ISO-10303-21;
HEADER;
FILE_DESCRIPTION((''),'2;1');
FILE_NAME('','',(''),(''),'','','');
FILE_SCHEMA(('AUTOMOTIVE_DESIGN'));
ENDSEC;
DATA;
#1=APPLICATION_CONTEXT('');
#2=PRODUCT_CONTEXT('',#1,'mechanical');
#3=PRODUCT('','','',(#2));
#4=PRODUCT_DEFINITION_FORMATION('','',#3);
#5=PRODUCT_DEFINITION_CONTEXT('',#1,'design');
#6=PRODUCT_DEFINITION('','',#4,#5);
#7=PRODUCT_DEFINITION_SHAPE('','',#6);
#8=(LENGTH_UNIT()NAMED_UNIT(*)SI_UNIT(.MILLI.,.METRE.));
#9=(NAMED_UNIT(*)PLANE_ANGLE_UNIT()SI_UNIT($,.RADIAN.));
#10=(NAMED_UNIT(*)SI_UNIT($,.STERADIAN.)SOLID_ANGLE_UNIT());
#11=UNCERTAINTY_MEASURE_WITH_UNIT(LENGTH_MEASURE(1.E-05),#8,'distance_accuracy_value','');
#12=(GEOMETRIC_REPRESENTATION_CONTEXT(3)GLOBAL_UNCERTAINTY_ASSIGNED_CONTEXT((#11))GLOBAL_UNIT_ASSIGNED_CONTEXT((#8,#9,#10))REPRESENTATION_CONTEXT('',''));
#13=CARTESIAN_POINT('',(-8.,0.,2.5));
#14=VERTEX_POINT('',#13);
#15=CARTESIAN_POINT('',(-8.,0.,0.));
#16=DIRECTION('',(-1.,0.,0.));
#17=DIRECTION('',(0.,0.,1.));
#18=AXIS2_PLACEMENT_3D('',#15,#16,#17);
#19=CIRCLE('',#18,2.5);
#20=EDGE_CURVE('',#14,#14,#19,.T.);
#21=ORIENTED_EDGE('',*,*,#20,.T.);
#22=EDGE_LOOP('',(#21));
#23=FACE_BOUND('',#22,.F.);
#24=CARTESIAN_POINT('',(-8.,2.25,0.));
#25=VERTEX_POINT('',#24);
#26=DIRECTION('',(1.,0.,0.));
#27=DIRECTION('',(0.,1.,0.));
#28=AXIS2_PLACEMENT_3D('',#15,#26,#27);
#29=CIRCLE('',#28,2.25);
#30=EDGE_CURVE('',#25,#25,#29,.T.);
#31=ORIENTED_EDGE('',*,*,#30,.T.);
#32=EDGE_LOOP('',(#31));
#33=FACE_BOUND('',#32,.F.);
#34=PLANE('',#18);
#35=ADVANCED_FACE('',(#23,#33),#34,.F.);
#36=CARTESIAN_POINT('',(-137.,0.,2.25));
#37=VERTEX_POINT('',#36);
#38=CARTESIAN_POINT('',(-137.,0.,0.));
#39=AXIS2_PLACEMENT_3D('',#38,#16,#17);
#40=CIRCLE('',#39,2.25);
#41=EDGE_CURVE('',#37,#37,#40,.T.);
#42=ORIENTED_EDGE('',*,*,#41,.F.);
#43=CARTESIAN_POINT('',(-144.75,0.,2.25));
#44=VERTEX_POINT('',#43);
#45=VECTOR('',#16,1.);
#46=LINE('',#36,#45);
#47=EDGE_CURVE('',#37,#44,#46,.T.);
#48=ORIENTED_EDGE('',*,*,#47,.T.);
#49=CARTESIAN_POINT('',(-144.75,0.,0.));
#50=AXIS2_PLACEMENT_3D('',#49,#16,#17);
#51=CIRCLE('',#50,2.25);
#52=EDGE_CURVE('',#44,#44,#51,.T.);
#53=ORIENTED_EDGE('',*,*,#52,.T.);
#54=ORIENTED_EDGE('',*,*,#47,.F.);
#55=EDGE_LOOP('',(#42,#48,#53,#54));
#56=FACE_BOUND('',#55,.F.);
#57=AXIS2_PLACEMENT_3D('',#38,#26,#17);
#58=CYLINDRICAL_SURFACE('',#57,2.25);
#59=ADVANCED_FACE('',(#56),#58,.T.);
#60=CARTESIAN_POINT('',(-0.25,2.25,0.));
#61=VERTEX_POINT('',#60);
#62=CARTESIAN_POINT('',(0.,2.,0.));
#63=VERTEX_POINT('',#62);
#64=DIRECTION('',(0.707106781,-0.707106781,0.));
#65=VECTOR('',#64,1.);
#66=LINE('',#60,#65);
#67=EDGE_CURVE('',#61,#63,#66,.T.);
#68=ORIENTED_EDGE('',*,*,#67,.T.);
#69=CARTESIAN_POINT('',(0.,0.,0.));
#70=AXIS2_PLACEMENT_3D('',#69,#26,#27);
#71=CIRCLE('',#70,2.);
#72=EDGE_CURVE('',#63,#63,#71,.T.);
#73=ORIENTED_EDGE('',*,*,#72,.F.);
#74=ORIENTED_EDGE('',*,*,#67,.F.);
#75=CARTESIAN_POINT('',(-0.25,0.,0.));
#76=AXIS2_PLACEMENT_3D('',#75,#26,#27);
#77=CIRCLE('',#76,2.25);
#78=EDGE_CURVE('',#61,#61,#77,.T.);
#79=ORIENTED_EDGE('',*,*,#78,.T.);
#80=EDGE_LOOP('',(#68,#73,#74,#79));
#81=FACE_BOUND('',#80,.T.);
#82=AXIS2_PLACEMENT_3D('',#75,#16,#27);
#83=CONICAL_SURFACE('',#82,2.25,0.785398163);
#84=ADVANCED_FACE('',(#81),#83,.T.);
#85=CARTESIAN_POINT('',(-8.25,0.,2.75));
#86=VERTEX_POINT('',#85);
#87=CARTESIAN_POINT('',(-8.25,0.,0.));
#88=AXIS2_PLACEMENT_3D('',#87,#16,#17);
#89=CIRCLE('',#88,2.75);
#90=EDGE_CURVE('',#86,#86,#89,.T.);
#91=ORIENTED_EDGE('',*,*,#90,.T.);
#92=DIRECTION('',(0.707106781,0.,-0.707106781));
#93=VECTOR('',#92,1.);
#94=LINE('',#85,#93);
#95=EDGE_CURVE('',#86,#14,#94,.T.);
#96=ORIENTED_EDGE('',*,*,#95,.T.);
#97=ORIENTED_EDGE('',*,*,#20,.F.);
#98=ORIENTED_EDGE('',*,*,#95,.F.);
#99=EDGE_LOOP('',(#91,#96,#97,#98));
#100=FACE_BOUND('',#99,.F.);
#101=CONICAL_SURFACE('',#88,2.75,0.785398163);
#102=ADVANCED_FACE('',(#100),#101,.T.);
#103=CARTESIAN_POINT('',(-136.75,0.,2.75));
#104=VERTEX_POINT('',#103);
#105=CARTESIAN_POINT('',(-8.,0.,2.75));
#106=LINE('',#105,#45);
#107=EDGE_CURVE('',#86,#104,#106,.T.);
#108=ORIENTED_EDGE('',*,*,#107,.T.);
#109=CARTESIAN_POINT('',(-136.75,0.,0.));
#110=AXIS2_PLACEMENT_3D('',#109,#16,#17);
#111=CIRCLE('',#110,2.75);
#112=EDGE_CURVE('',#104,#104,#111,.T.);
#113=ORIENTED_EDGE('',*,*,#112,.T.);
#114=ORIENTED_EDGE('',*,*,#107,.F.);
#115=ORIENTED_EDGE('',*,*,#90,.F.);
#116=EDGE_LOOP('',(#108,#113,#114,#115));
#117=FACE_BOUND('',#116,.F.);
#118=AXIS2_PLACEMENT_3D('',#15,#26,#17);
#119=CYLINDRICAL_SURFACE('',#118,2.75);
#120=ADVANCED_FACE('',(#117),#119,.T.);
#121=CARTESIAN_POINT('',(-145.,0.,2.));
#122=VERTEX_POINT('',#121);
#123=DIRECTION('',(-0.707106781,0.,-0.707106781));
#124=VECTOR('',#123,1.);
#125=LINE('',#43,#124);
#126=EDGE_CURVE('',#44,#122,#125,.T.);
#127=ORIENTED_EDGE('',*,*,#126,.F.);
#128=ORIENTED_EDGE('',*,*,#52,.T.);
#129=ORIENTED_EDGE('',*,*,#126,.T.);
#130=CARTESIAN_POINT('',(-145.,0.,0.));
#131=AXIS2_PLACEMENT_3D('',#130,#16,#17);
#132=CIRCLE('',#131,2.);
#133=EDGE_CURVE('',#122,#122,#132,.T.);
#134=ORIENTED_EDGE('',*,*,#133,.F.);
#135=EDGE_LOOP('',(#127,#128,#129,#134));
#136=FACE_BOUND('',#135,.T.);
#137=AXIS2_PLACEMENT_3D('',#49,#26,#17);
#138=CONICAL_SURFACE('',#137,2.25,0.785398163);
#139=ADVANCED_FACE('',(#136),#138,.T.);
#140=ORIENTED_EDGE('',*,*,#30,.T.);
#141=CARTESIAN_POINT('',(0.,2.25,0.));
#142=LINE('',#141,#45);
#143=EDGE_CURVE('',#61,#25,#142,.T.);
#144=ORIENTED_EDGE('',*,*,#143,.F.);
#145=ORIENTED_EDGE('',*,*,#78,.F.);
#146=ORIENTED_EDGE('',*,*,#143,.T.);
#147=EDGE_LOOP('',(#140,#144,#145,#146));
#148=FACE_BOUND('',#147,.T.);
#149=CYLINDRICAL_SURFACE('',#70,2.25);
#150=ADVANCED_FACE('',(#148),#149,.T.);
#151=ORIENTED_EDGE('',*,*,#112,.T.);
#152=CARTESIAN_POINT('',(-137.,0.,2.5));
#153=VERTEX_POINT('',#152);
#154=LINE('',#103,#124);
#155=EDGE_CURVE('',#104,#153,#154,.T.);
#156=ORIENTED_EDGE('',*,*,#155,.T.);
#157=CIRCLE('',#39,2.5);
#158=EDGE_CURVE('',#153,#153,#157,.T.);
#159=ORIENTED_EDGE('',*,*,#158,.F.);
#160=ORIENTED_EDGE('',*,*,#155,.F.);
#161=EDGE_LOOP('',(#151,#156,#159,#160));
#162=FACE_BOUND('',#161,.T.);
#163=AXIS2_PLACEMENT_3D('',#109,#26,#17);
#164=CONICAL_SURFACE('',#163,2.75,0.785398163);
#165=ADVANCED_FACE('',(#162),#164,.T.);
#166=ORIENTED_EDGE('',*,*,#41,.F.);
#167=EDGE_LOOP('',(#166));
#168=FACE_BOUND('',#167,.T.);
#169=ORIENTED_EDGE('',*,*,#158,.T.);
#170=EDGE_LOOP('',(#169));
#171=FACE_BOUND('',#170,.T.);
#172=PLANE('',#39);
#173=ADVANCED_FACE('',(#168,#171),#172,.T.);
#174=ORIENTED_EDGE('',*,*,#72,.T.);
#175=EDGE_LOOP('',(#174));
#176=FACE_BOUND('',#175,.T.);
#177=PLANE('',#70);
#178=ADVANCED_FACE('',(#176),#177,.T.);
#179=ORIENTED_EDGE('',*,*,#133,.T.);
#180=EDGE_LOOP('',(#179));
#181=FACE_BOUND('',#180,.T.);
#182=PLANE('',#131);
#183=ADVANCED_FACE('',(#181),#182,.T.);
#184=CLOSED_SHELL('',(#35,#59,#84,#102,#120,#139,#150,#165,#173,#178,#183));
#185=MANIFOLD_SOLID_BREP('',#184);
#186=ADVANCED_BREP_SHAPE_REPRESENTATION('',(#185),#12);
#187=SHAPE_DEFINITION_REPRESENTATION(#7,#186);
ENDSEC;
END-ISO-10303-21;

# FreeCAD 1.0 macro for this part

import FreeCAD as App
import Part
import Sketcher
Q = App.Units.Quantity


def edges_at(feature, points):
    """Names of the edges that pass closest to the given points."""
    edges = feature.Shape.Edges
    near = lambda p: min(range(len(edges)), key=lambda i: edges[i].distToShape(Part.Vertex(*p))[0])
    return sorted({f"Edge{near(p) + 1}" for p in points})

doc = App.newDocument("Part")
body = doc.addObject("PartDesign::Body", "Body")

# Sketch on YZ plane
sketch1 = doc.addObject("Sketcher::SketchObject", "Sketch")
body.addObject(sketch1)
sketch1.AttachmentSupport = (doc.YZ_Plane, [""])
sketch1.MapMode = "FlatFace"
sketch1.addGeometry(Part.Circle(App.Vector(0, 0, 0), App.Vector(0, 0, 1), 2.25), False)
sketch1.addConstraint(Sketcher.Constraint("Coincident", 0, 3, -1, 1))
sketch1.addConstraint(Sketcher.Constraint("Diameter", 0, Q("4.5 mm")))
pad1 = doc.addObject("PartDesign::Pad", "Pad")
body.addObject(pad1)
pad1.Profile = sketch1
pad1.Length = 8
pad1.Reversed = True

# Sketch on YZ plane
sketch2 = doc.addObject("Sketcher::SketchObject", "Sketch001")
body.addObject(sketch2)
sketch2.AttachmentSupport = (doc.YZ_Plane, [""])
sketch2.MapMode = "FlatFace"
sketch2.AttachmentOffset = App.Placement(App.Vector(0, 0, -8), App.Rotation())
sketch2.addGeometry(Part.Circle(App.Vector(0, 0, 0), App.Vector(0, 0, 1), 2.75), False)
sketch2.addConstraint(Sketcher.Constraint("Coincident", 0, 3, -1, 1))
sketch2.addConstraint(Sketcher.Constraint("Diameter", 0, Q("5.5 mm")))
pad2 = doc.addObject("PartDesign::Pad", "Pad001")
body.addObject(pad2)
pad2.Profile = sketch2
pad2.Length = 129
pad2.Reversed = True

# Sketch on YZ plane
sketch3 = doc.addObject("Sketcher::SketchObject", "Sketch002")
body.addObject(sketch3)
sketch3.AttachmentSupport = (doc.YZ_Plane, [""])
sketch3.MapMode = "FlatFace"
sketch3.AttachmentOffset = App.Placement(App.Vector(0, 0, -137), App.Rotation())
sketch3.addGeometry(Part.Circle(App.Vector(0, 0, 0), App.Vector(0, 0, 1), 2.25), False)
sketch3.addConstraint(Sketcher.Constraint("Coincident", 0, 3, -1, 1))
sketch3.addConstraint(Sketcher.Constraint("Diameter", 0, Q("4.5 mm")))
pad3 = doc.addObject("PartDesign::Pad", "Pad002")
body.addObject(pad3)
pad3.Profile = sketch3
pad3.Length = 8
pad3.Reversed = True
doc.recompute()

chamfer = doc.addObject("PartDesign::Chamfer", "Chamfer")
body.addObject(chamfer)
chamfer.Base = (pad3, edges_at(pad3, [
    (0, -2.25, 0),
    (-8, 0, -2.75),
    (-137, 0, -2.75),
    (-145, 0, -2.25),
]))
chamfer.Size = 0.25

doc.recompute()
